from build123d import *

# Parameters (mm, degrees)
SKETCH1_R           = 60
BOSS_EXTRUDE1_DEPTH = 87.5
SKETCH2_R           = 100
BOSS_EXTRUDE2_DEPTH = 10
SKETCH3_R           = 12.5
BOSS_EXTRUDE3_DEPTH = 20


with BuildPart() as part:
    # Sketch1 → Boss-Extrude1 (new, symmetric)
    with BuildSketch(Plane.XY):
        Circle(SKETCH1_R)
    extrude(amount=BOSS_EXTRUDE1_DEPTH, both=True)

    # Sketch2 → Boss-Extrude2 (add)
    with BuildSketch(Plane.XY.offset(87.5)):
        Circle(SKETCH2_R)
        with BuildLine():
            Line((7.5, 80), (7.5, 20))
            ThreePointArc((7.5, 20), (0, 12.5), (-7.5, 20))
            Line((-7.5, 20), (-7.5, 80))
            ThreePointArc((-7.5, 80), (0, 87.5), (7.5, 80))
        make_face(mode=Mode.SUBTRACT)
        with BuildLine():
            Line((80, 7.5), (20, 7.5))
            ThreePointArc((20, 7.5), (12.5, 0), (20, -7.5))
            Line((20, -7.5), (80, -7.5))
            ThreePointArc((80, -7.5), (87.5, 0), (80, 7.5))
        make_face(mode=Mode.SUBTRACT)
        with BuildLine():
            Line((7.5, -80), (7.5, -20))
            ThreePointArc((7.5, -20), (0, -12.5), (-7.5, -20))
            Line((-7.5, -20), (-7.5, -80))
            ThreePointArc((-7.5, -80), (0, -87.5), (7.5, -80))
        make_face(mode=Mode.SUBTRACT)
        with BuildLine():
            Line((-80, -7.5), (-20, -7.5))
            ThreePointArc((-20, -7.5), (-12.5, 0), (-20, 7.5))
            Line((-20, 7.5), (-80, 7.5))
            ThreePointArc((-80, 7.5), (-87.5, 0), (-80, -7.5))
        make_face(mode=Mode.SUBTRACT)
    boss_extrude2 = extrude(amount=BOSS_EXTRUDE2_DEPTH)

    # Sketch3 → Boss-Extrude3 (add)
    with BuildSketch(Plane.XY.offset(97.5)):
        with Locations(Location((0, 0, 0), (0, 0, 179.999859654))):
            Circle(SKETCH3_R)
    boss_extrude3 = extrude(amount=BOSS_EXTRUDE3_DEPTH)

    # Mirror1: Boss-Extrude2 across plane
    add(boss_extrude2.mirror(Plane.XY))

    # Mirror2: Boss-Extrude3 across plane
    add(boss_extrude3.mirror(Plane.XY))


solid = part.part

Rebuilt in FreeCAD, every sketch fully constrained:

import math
import FreeCAD as App
import Part
import Sketcher

V = App.Vector

doc = App.newDocument("Part")
body = doc.addObject("PartDesign::Body", "Body")

sketch1 = body.newObject("Sketcher::SketchObject", "Sketch")
sketch1.AttachmentSupport = (doc.getObject("XY_Plane"), [""])
sketch1.MapMode = "FlatFace"
sketch1.addGeometry(Part.Circle(V(0, 0, 0), V(0, 0, 1), 60), False)
sketch1.addConstraint(Sketcher.Constraint("Coincident", 0, 3, -1, 1))
sketch1.addConstraint(Sketcher.Constraint("Diameter", 0, 120.0))
pad1 = body.newObject("PartDesign::Pad", "Pad")
pad1.Profile = sketch1
pad1.Length = 175
pad1.Midplane = True

sketch2 = body.newObject("Sketcher::SketchObject", "Sketch001")
sketch2.AttachmentSupport = (doc.getObject("XY_Plane"), [""])
sketch2.MapMode = "FlatFace"
sketch2.AttachmentOffset = App.Placement(V(0, 0, 87.5), App.Rotation())
sketch2.addGeometry(Part.Circle(V(0, 0, 0), V(0, 0, 1), 100), False)
sketch2.addGeometry(Part.LineSegment(V(8, -20, 0), V(8, -80, 0)), False)
sketch2.addGeometry(Part.ArcOfCircle(Part.Circle(V(0, -80, 0), V(0, 0, 1), 8), math.radians(180), math.radians(360)), False)
sketch2.addGeometry(Part.LineSegment(V(-8, -80, 0), V(-8, -20, 0)), False)
sketch2.addGeometry(Part.ArcOfCircle(Part.Circle(V(0, -20, 0), V(0, 0, 1), 8), math.radians(0), math.radians(180)), False)
sketch2.addGeometry(Part.LineSegment(V(-20, -8, 0), V(-80, -8, 0)), False)
sketch2.addGeometry(Part.ArcOfCircle(Part.Circle(V(-80, 0, 0), V(0, 0, 1), 8), math.radians(90), math.radians(270)), False)
sketch2.addGeometry(Part.LineSegment(V(-80, 8, 0), V(-20, 8, 0)), False)
sketch2.addGeometry(Part.ArcOfCircle(Part.Circle(V(-20, 0, 0), V(0, 0, 1), 8), math.radians(-90), math.radians(90)), False)
sketch2.addGeometry(Part.LineSegment(V(20, 8, 0), V(80, 8, 0)), False)
sketch2.addGeometry(Part.ArcOfCircle(Part.Circle(V(80, 0, 0), V(0, 0, 1), 8), math.radians(-90), math.radians(90)), False)
sketch2.addGeometry(Part.LineSegment(V(80, -8, 0), V(20, -8, 0)), False)
sketch2.addGeometry(Part.ArcOfCircle(Part.Circle(V(20, 0, 0), V(0, 0, 1), 8), math.radians(90), math.radians(270)), False)
sketch2.addGeometry(Part.ArcOfCircle(Part.Circle(V(0, 80, 0), V(0, 0, 1), 8), math.radians(0), math.radians(180)), False)
sketch2.addGeometry(Part.LineSegment(V(8, 80, 0), V(8, 20, 0)), False)
sketch2.addGeometry(Part.ArcOfCircle(Part.Circle(V(0, 20, 0), V(0, 0, 1), 8), math.radians(180), math.radians(360)), False)
sketch2.addGeometry(Part.LineSegment(V(-8, 20, 0), V(-8, 80, 0)), False)
sketch2.addConstraint(Sketcher.Constraint("Tangent", 1, 2, 2, 2))
sketch2.addConstraint(Sketcher.Constraint("Tangent", 2, 1, 3, 1))
sketch2.addConstraint(Sketcher.Constraint("Tangent", 3, 2, 4, 2))
sketch2.addConstraint(Sketcher.Constraint("Tangent", 4, 1, 1, 1))
sketch2.addConstraint(Sketcher.Constraint("Tangent", 5, 2, 6, 2))
sketch2.addConstraint(Sketcher.Constraint("Tangent", 6, 1, 7, 1))
sketch2.addConstraint(Sketcher.Constraint("Tangent", 7, 2, 8, 2))
sketch2.addConstraint(Sketcher.Constraint("Tangent", 8, 1, 5, 1))
sketch2.addConstraint(Sketcher.Constraint("Tangent", 9, 2, 10, 2))
sketch2.addConstraint(Sketcher.Constraint("Tangent", 10, 1, 11, 1))
sketch2.addConstraint(Sketcher.Constraint("Tangent", 11, 2, 12, 2))
sketch2.addConstraint(Sketcher.Constraint("Tangent", 12, 1, 9, 1))
sketch2.addConstraint(Sketcher.Constraint("Tangent", 13, 1, 14, 1))
sketch2.addConstraint(Sketcher.Constraint("Tangent", 14, 2, 15, 2))
sketch2.addConstraint(Sketcher.Constraint("Tangent", 15, 1, 16, 1))
sketch2.addConstraint(Sketcher.Constraint("Tangent", 16, 2, 13, 2))
sketch2.addConstraint(Sketcher.Constraint("Vertical", 1))
sketch2.addConstraint(Sketcher.Constraint("Vertical", 3))
sketch2.addConstraint(Sketcher.Constraint("Horizontal", 5))
sketch2.addConstraint(Sketcher.Constraint("Horizontal", 7))
sketch2.addConstraint(Sketcher.Constraint("Horizontal", 9))
sketch2.addConstraint(Sketcher.Constraint("Horizontal", 11))
sketch2.addConstraint(Sketcher.Constraint("Vertical", 14))
sketch2.addConstraint(Sketcher.Constraint("Vertical", 16))
sketch2.addConstraint(Sketcher.Constraint("Coincident", 0, 3, -1, 1))
sketch2.addConstraint(Sketcher.Constraint("Equal", 4, 6))
sketch2.addConstraint(Sketcher.Constraint("Equal", 8, 10))
sketch2.addConstraint(Sketcher.Constraint("Equal", 12, 13))
sketch2.addConstraint(Sketcher.Constraint("Symmetric", 6, 3, 10, 3, -1, 1))
sketch2.addConstraint(Sketcher.Constraint("Symmetric", 2, 3, 13, 3, -1, 1))
sketch2.addConstraint(Sketcher.Constraint("Symmetric", 8, 3, 12, 3, -2))
sketch2.addConstraint(Sketcher.Constraint("Symmetric", 4, 3, 15, 3, -1))
sketch2.addConstraint(Sketcher.Constraint("Equal", 11, 1))
sketch2.addConstraint(Sketcher.Constraint("Diameter", 0, 200.0))
sketch2.addConstraint(Sketcher.Constraint("Radius", 2, 7.5))
sketch2.addConstraint(Sketcher.Constraint("DistanceX", 5, 2, 5, 1, 60.0))
sketch2.addConstraint(Sketcher.Constraint("DistanceY", 2, 3, -1, 1, 80.0))
sketch2.addConstraint(Sketcher.Constraint("DistanceX", 6, 3, -1, 1, 80.0))
pad2 = body.newObject("PartDesign::Pad", "Pad001")
pad2.Profile = sketch2
pad2.Length = 10

sketch3 = body.newObject("Sketcher::SketchObject", "Sketch002")
sketch3.AttachmentSupport = (doc.getObject("XY_Plane"), [""])
sketch3.MapMode = "FlatFace"
sketch3.AttachmentOffset = App.Placement(V(0, 0, 97.5), App.Rotation())
sketch3.addGeometry(Part.Circle(V(0, 0, 0), V(0, 0, 1), 12), False)
sketch3.addConstraint(Sketcher.Constraint("Coincident", 0, 3, -1, 1))
sketch3.addConstraint(Sketcher.Constraint("Diameter", 0, 25.0))
pad3 = body.newObject("PartDesign::Pad", "Pad002")
pad3.Profile = sketch3
pad3.Length = 20
doc.recompute()

mirrored = body.newObject("PartDesign::Mirrored", "Mirrored")
mirrored.Originals = [pad2]
mirrored.MirrorPlane = (doc.getObject("XY_Plane"), [""])
body.Tip = mirrored
doc.recompute()

mirrored2 = body.newObject("PartDesign::Mirrored", "Mirrored001")
mirrored2.Originals = [pad3]
mirrored2.MirrorPlane = (doc.getObject("XY_Plane"), [""])
body.Tip = mirrored2

doc.recompute()
